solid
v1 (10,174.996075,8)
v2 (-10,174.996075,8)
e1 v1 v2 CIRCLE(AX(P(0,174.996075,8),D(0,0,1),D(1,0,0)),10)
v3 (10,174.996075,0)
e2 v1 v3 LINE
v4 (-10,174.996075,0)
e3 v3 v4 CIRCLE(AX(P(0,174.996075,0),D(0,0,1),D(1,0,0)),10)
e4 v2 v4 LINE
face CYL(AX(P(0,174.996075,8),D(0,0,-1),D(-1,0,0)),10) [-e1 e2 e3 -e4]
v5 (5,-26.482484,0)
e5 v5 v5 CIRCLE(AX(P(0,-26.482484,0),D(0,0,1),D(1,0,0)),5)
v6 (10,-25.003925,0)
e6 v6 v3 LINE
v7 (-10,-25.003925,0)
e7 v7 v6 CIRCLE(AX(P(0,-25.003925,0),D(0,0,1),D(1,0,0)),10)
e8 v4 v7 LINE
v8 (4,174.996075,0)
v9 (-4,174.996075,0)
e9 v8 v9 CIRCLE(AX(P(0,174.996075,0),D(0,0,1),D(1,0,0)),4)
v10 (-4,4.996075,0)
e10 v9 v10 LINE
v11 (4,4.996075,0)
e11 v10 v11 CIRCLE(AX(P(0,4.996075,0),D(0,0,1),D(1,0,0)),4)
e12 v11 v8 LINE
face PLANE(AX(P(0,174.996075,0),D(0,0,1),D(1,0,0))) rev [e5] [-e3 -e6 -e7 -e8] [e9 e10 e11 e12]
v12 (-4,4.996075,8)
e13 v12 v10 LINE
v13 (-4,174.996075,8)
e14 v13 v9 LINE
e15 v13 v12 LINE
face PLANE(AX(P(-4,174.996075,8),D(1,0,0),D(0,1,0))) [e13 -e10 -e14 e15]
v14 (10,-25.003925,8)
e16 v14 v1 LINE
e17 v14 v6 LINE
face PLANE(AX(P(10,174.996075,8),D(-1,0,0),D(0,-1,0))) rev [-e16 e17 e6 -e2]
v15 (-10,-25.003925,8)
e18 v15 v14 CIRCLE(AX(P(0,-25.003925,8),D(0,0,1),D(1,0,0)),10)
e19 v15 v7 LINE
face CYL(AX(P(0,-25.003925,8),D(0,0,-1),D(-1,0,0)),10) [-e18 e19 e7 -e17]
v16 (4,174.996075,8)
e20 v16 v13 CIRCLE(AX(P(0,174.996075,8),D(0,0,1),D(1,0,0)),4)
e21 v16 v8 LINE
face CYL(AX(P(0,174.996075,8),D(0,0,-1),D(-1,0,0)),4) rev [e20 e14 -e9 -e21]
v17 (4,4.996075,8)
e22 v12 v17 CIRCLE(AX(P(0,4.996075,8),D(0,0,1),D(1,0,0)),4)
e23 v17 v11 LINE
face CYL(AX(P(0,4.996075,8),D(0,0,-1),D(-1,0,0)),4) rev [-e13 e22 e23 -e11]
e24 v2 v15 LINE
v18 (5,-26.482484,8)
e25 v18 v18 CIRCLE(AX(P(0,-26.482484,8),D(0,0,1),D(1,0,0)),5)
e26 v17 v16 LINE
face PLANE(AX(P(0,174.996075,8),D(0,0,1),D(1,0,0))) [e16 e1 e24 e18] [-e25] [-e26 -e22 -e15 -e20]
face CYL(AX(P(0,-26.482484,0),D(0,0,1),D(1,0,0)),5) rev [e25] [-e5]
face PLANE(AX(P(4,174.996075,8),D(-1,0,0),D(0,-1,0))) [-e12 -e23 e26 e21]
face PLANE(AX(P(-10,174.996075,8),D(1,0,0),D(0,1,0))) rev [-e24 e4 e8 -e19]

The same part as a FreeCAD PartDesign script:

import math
import FreeCAD as App
import Part
import Sketcher
Q = App.Units.Quantity

doc = App.newDocument("Part")
params = doc.addObject("Spreadsheet::Sheet", "Params")
for row, (alias, value) in enumerate([
    ("sketch1_radius", "10 mm"),
    ("sketch1_radius2", "4 mm"),
    ("sketch1_height", "200 mm"),
    ("sketch1_height2", "170 mm"),
    ("pad1_length", "8 mm"),
    ("sketch2_diameter", "10 mm"),
    ("pocket1_length", "8 mm"),
], start=1):
    params.set(f"A{row}", alias)
    params.set(f"B{row}", "=" + value)
    params.setAlias(f"B{row}", alias)

body = doc.addObject("PartDesign::Body", "Body")

sketch1 = body.newObject("Sketcher::SketchObject", "Sketch")
sketch1.AttachmentSupport = (doc.getObject("XY_Plane"), [""])
sketch1.MapMode = "FlatFace"
sketch1.addGeometry(Part.LineSegment(App.Vector(10, -25, 0), App.Vector(10, 175, 0)), False)
sketch1.addGeometry(Part.ArcOfCircle(Part.Circle(App.Vector(0, 175, 0), App.Vector(0, 0, 1), 10), math.radians(0), math.radians(180)), False)
sketch1.addGeometry(Part.LineSegment(App.Vector(-10, 175, 0), App.Vector(-10, -25, 0)), False)
sketch1.addGeometry(Part.ArcOfCircle(Part.Circle(App.Vector(0, -25, 0), App.Vector(0, 0, 1), 10), math.radians(180), math.radians(360)), False)
sketch1.addGeometry(Part.LineSegment(App.Vector(4, 175, 0), App.Vector(4, 5, 0)), False)
sketch1.addGeometry(Part.ArcOfCircle(Part.Circle(App.Vector(0, 5, 0), App.Vector(0, 0, 1), 4), math.radians(180), math.radians(360)), False)
sketch1.addGeometry(Part.LineSegment(App.Vector(-4, 5, 0), App.Vector(-4, 175, 0)), False)
sketch1.addGeometry(Part.ArcOfCircle(Part.Circle(App.Vector(0, 175, 0), App.Vector(0, 0, 1), 4), math.radians(0), math.radians(180)), False)
sketch1.addConstraint(Sketcher.Constraint("Tangent", 0, 2, 1, 1))
sketch1.addConstraint(Sketcher.Constraint("Tangent", 1, 2, 2, 1))
sketch1.addConstraint(Sketcher.Constraint("Tangent", 2, 2, 3, 1))
sketch1.addConstraint(Sketcher.Constraint("Tangent", 3, 2, 0, 1))
sketch1.addConstraint(Sketcher.Constraint("Tangent", 4, 2, 5, 2))
sketch1.addConstraint(Sketcher.Constraint("Tangent", 5, 1, 6, 1))
sketch1.addConstraint(Sketcher.Constraint("Tangent", 6, 2, 7, 2))
sketch1.addConstraint(Sketcher.Constraint("Tangent", 7, 1, 4, 1))
sketch1.addConstraint(Sketcher.Constraint("Vertical", 0))
sketch1.addConstraint(Sketcher.Constraint("Vertical", 2))
sketch1.addConstraint(Sketcher.Constraint("Vertical", 4))
sketch1.addConstraint(Sketcher.Constraint("Vertical", 6))
sketch1.addConstraint(Sketcher.Constraint("Coincident", 7, 3, 1, 3))
sketch1.addConstraint(Sketcher.Constraint("PointOnObject", 1, 3, -2))
sketch1.addConstraint(Sketcher.Constraint("Radius", 1, Q("10 mm")))
sketch1.addConstraint(Sketcher.Constraint("Radius", 5, Q("4 mm")))
sketch1.addConstraint(Sketcher.Constraint("DistanceY", 0, 1, 0, 2, Q("200 mm")))
sketch1.addConstraint(Sketcher.Constraint("DistanceY", 4, 2, 4, 1, Q("170 mm")))
sketch1.addConstraint(Sketcher.Constraint("DistanceY", -1, 1, 1, 3, Q("174.996075 mm")))
sketch1.setExpression("Constraints[14]", "Params.sketch1_radius")
sketch1.setExpression("Constraints[15]", "Params.sketch1_radius2")
sketch1.setExpression("Constraints[16]", "Params.sketch1_height")
sketch1.setExpression("Constraints[17]", "Params.sketch1_height2")
pad1 = body.newObject("PartDesign::Pad", "Pad")
pad1.Profile = sketch1
pad1.setExpression("Length", "Params.pad1_length")

sketch2 = body.newObject("Sketcher::SketchObject", "Sketch001")
sketch2.AttachmentSupport = (doc.getObject("XY_Plane"), [""])
sketch2.MapMode = "FlatFace"
sketch2.AttachmentOffset = App.Placement(App.Vector(0, 0, 8), App.Rotation())
sketch2.addGeometry(Part.Circle(App.Vector(0, -26, 0), App.Vector(0, 0, 1), 5), False)
sketch2.addConstraint(Sketcher.Constraint("PointOnObject", 0, 3, -2))
sketch2.addConstraint(Sketcher.Constraint("Diameter", 0, Q("10 mm")))
sketch2.addConstraint(Sketcher.Constraint("DistanceY", 0, 3, -1, 1, Q("26.482484 mm")))
sketch2.setExpression("Constraints[1]", "Params.sketch2_diameter")
pocket1 = body.newObject("PartDesign::Pocket", "Pocket")
pocket1.Profile = sketch2
pocket1.setExpression("Length", "Params.pocket1_length")

doc.recompute()
